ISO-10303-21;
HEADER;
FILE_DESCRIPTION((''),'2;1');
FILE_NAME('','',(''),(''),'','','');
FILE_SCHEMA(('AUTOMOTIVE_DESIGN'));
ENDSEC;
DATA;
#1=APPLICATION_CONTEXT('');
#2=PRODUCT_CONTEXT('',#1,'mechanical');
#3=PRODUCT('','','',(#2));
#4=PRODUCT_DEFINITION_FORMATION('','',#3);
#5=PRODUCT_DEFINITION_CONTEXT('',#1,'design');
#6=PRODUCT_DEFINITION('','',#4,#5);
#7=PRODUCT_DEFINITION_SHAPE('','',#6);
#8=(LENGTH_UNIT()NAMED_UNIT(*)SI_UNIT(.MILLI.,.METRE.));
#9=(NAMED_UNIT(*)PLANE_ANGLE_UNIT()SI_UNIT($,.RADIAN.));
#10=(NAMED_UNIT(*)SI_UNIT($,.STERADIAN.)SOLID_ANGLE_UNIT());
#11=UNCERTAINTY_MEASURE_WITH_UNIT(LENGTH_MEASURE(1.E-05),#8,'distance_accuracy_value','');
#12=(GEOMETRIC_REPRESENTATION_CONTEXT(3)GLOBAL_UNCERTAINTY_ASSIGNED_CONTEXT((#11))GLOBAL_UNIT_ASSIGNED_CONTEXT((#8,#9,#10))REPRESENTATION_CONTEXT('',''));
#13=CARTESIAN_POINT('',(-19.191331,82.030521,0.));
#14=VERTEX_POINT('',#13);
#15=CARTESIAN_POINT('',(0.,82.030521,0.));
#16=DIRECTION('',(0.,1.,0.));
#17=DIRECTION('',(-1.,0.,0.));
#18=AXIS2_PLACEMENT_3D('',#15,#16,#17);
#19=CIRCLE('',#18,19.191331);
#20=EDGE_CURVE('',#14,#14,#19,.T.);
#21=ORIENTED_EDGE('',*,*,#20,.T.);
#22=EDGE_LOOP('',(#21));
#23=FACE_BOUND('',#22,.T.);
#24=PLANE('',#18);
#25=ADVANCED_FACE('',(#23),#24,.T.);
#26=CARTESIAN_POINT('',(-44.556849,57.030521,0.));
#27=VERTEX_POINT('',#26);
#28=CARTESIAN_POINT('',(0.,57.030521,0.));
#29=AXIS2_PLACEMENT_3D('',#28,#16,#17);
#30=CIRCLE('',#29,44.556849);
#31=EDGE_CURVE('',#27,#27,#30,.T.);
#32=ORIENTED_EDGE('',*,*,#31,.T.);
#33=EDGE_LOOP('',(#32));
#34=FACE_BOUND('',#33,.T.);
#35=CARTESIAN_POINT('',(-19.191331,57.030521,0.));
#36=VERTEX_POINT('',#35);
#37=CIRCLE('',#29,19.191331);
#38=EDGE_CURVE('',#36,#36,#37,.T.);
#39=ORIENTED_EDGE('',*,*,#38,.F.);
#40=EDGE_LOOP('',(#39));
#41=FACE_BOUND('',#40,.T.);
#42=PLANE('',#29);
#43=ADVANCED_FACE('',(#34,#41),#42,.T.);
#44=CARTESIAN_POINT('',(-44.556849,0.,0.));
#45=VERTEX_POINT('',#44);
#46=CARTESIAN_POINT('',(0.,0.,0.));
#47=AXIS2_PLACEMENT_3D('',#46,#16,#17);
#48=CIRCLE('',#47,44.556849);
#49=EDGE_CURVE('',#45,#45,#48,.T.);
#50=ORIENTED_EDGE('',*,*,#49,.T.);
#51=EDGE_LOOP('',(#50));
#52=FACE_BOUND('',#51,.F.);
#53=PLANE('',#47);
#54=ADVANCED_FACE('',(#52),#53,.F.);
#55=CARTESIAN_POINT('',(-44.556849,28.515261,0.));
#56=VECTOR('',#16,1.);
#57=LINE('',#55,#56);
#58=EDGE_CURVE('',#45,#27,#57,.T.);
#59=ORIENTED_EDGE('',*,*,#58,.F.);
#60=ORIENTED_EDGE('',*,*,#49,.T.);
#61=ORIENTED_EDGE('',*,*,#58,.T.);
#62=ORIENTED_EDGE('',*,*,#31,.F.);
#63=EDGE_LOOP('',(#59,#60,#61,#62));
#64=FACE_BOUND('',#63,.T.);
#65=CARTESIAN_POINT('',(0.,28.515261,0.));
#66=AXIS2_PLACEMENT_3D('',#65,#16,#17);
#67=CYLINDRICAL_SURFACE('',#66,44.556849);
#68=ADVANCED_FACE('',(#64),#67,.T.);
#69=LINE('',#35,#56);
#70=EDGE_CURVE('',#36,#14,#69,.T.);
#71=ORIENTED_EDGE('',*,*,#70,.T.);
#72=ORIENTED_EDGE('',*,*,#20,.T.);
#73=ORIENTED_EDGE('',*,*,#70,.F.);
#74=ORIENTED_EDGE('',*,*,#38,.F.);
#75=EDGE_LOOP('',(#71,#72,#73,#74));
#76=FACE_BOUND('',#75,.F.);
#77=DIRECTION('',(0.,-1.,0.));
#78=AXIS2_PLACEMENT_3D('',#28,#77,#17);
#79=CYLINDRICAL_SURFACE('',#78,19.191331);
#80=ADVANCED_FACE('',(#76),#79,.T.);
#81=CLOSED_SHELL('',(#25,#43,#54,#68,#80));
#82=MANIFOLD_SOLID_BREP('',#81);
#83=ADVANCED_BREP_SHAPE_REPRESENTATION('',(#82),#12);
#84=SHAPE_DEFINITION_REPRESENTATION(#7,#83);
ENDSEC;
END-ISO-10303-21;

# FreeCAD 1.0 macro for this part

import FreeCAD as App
import Part
import Sketcher

V = App.Vector
Q = App.Units.Quantity


def add_polygon(sketch, points):
    """Adds a closed chain of lines whose ends are joined by coincident constraints."""
    first, n = sketch.GeometryCount, len(points)
    for a, b in zip(points, points[1:] + points[:1]):
        sketch.addGeometry(Part.LineSegment(App.Vector(*a, 0), App.Vector(*b, 0)), False)
    for i in range(n):
        sketch.addConstraint(Sketcher.Constraint("Coincident", first + i, 2, first + (i + 1) % n, 1))

doc = App.newDocument("Part")
body = doc.addObject("PartDesign::Body", "Body")

# Sketch on XY plane
sketch1 = body.newObject("Sketcher::SketchObject", "Sketch")
sketch1.AttachmentSupport = (doc.getObject("XY_Plane"), [""])
sketch1.MapMode = "FlatFace"
add_polygon(sketch1, [(-44.556849, 57.030521), (-44.556849, 0), (0, 0), (0, 57.030521)])  # lines 0-3
sketch1.addConstraint([
    Sketcher.Constraint("Vertical", 0),
    Sketcher.Constraint("Horizontal", 1),
    Sketcher.Constraint("Vertical", 2),
    Sketcher.Constraint("Horizontal", 3),
    Sketcher.Constraint("Coincident", 1, 2, -1, 1),
    Sketcher.Constraint("DistanceX", 1, 1, 1, 2, Q("44.556849 mm")),
    Sketcher.Constraint("DistanceY", 0, 2, 0, 1, Q("57.030521 mm")),
])
revolution = body.newObject("PartDesign::Revolution", "Revolution")
revolution.Profile = sketch1
revolution.ReferenceAxis = (sketch1, ["V_Axis"])
revolution.Angle = 360

# Sketch on XZ plane
sketch2 = body.newObject("Sketcher::SketchObject", "Sketch001")
sketch2.AttachmentSupport = (doc.getObject("XZ_Plane"), [""])
sketch2.MapMode = "FlatFace"
sketch2.AttachmentOffset = App.Placement(V(0, 0, -57.030521), App.Rotation())
sketch2.addGeometry(Part.Circle(V(0, 0, 0), V(0, 0, 1), 19.191331), False)
sketch2.addConstraint([
    Sketcher.Constraint("Coincident", 0, 3, -1, 1),
    Sketcher.Constraint("Diameter", 0, Q("38.382662 mm")),
])
pad1 = body.newObject("PartDesign::Pad", "Pad")
pad1.Profile = sketch2
pad1.Length = 25
pad1.Reversed = True

doc.recompute()
